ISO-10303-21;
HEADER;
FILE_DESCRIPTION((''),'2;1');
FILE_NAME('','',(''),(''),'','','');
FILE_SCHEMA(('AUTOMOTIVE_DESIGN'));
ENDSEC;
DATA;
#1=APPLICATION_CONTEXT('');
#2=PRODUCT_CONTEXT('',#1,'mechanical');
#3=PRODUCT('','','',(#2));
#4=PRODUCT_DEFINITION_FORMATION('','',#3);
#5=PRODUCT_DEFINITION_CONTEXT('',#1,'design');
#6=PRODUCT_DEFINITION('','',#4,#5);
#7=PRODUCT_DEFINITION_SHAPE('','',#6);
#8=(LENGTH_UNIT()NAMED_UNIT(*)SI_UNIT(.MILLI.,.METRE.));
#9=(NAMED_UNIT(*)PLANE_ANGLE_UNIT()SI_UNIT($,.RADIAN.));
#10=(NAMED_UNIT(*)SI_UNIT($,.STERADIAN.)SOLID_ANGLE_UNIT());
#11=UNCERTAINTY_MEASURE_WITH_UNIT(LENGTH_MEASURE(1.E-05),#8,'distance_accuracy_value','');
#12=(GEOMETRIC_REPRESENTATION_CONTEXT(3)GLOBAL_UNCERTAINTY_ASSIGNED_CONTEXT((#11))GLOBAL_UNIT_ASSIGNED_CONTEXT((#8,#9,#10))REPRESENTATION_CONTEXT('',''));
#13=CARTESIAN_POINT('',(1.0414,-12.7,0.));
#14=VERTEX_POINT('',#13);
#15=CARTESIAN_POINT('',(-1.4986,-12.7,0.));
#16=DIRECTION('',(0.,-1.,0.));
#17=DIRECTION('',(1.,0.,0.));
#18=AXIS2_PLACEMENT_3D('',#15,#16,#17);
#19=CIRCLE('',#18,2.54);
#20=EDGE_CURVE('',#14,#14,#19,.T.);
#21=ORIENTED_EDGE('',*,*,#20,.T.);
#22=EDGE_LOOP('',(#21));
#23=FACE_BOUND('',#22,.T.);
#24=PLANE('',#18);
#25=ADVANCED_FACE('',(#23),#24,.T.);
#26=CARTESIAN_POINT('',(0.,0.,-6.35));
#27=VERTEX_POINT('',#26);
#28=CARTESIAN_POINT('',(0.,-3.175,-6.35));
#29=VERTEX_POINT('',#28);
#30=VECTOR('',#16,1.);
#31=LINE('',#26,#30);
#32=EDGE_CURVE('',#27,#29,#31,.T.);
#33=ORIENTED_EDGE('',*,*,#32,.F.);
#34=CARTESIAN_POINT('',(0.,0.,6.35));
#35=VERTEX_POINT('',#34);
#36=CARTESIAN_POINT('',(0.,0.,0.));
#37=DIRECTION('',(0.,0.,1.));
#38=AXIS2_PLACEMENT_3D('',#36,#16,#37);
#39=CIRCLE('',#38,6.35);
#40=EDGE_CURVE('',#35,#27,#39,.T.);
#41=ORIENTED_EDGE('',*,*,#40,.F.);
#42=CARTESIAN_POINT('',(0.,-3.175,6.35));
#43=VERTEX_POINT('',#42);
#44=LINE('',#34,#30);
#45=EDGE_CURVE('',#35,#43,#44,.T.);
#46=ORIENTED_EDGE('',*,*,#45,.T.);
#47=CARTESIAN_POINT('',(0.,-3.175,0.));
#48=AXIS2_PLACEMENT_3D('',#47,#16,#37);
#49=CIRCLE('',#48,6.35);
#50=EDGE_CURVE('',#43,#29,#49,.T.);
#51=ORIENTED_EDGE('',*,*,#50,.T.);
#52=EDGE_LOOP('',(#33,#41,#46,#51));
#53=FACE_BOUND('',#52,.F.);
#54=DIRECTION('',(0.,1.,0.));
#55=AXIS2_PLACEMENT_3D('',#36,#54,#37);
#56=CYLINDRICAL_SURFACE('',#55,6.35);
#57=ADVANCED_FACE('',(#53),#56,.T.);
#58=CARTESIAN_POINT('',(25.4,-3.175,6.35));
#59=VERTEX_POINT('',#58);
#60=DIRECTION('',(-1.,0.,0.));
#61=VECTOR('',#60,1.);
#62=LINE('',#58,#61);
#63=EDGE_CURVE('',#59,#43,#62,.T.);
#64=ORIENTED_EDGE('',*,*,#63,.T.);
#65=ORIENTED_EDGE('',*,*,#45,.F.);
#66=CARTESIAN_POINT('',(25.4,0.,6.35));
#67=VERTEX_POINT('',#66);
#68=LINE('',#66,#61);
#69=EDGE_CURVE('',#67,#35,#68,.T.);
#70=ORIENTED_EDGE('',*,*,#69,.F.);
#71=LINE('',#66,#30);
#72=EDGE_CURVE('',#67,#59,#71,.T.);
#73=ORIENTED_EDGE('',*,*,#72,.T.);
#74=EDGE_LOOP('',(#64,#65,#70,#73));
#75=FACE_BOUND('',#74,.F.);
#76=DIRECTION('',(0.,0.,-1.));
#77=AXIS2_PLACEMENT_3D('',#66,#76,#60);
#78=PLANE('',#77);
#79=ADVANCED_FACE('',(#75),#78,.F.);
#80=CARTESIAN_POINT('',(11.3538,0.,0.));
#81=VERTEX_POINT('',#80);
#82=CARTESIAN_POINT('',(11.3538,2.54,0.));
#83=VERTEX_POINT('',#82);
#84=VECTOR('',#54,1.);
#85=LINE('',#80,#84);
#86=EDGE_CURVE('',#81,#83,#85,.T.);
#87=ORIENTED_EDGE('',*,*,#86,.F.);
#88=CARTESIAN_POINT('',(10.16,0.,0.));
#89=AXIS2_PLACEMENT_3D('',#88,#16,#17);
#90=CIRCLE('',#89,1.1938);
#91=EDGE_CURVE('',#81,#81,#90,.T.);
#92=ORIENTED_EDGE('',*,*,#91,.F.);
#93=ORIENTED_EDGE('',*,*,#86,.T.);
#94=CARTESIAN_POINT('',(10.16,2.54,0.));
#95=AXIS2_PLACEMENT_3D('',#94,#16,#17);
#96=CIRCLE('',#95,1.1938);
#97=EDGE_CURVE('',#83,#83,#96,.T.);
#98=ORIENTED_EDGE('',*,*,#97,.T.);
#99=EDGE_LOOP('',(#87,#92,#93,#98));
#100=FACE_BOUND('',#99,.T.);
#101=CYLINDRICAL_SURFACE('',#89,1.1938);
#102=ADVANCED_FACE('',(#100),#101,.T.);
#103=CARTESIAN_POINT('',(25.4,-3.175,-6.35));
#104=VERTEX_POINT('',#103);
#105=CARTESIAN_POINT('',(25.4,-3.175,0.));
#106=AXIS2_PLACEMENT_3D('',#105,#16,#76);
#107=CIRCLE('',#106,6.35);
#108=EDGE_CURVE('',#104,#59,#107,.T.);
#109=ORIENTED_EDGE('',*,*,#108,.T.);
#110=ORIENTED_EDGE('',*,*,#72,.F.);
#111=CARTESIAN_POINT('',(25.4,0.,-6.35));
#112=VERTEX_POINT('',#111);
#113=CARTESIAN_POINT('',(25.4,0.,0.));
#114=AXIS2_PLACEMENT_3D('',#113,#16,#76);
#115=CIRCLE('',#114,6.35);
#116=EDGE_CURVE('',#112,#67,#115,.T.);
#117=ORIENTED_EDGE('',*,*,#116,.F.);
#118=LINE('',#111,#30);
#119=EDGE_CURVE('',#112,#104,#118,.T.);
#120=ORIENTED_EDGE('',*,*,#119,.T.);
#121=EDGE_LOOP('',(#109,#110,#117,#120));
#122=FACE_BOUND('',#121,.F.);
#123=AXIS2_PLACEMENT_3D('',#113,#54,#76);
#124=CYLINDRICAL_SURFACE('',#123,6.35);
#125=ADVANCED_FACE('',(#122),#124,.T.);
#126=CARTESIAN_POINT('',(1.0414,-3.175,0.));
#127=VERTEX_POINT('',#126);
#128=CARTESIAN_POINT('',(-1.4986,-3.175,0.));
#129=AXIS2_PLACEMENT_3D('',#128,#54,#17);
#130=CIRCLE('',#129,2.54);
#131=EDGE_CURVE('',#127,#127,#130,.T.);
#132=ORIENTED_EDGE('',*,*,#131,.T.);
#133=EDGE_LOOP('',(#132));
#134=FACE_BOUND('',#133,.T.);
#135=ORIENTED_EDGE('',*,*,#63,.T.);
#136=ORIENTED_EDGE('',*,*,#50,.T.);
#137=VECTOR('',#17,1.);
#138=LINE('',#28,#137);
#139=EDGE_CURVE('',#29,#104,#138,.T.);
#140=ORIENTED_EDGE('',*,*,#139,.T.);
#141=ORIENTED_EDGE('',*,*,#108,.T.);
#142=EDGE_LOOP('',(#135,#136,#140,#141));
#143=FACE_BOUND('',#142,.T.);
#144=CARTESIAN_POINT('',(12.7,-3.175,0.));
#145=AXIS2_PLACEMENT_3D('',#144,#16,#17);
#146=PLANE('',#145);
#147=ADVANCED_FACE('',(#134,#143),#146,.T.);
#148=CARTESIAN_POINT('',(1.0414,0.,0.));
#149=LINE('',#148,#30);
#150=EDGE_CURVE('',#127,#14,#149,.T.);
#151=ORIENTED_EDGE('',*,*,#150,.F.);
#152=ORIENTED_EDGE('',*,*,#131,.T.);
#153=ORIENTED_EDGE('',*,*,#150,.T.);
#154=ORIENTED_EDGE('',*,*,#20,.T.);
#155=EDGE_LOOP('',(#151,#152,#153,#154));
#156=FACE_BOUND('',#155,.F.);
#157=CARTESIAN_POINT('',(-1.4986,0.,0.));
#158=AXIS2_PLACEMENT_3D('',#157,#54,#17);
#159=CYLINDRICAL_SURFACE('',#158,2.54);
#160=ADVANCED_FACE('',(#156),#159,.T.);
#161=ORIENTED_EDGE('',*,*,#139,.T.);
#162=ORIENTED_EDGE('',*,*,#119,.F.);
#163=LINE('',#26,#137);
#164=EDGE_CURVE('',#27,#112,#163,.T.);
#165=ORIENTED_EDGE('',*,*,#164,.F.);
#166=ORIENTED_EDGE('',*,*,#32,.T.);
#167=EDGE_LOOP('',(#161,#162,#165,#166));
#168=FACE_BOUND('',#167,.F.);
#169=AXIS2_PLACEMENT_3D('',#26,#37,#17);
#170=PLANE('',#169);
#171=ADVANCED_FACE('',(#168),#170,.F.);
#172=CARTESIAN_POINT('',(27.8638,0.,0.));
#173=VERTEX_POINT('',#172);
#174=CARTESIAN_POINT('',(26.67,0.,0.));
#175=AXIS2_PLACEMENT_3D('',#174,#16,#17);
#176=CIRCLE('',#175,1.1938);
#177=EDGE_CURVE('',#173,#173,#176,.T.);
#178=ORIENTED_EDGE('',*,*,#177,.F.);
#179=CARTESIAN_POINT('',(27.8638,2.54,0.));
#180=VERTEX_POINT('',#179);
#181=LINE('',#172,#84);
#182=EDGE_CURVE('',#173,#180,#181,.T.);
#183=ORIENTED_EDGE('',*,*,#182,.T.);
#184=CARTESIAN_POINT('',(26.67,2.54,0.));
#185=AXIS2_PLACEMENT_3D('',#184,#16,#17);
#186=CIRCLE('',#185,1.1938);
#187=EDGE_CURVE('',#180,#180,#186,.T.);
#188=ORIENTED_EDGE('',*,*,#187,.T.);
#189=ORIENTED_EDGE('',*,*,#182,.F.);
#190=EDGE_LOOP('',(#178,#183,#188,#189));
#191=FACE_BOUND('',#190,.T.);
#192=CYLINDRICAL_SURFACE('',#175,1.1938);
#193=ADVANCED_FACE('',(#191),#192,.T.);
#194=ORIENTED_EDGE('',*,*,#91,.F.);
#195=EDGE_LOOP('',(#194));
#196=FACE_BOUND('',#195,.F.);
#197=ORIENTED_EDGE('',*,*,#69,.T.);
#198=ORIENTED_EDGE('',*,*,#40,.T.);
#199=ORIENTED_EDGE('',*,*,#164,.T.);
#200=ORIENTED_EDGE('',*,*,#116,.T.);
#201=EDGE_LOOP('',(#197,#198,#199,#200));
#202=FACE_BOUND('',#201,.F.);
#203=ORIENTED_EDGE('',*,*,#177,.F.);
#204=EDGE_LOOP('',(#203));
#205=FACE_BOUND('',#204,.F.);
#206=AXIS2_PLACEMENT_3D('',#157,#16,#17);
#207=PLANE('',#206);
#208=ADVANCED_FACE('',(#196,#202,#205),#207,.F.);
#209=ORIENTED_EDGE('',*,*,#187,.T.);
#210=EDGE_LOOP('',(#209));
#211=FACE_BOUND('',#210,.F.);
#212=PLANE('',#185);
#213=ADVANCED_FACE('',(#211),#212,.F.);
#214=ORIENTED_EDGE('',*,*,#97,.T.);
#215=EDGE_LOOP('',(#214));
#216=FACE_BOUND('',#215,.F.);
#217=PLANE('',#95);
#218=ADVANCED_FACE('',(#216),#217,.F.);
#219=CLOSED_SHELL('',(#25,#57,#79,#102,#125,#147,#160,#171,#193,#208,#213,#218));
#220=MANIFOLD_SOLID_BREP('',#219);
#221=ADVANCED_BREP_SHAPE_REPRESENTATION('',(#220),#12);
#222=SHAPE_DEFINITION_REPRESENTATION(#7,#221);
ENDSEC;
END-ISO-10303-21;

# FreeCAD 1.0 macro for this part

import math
import FreeCAD as App
import Part
import Sketcher

V = App.Vector
Q = App.Units.Quantity

doc = App.newDocument("Part")
body = doc.addObject("PartDesign::Body", "Body")

sketch1 = body.newObject("Sketcher::SketchObject", "Sketch")
sketch1.AttachmentSupport = (doc.getObject("XZ_Plane"), [""])
sketch1.MapMode = "FlatFace"
sketch1.addGeometry(Part.LineSegment(V(25, 6, 0), V(0, 6, 0)), False)
sketch1.addGeometry(Part.ArcOfCircle(Part.Circle(V(0, 0, 0), V(0, 0, 1), 6), math.radians(90), math.radians(270)), False)
sketch1.addGeometry(Part.LineSegment(V(0, -6, 0), V(25, -6, 0)), False)
sketch1.addGeometry(Part.ArcOfCircle(Part.Circle(V(25, 0, 0), V(0, 0, 1), 6), math.radians(-90), math.radians(90)), False)
sketch1.addConstraint(Sketcher.Constraint("Tangent", 0, 2, 1, 1))
sketch1.addConstraint(Sketcher.Constraint("Tangent", 1, 2, 2, 1))
sketch1.addConstraint(Sketcher.Constraint("Tangent", 2, 2, 3, 1))
sketch1.addConstraint(Sketcher.Constraint("Tangent", 3, 2, 0, 1))
sketch1.addConstraint(Sketcher.Constraint("Horizontal", 0))
sketch1.addConstraint(Sketcher.Constraint("Horizontal", 2))
sketch1.addConstraint(Sketcher.Constraint("Coincident", 1, 3, -1, 1))
sketch1.addConstraint(Sketcher.Constraint("DistanceX", 0, 2, 0, 1, Q("1 in")))
sketch1.addConstraint(Sketcher.Constraint("Radius", 1, Q("0.25 in")))
pad1 = body.newObject("PartDesign::Pad", "Pad")
pad1.Profile = sketch1
pad1.Length = Q("0.125 in")

sketch2 = body.newObject("Sketcher::SketchObject", "Sketch001")
sketch2.AttachmentSupport = (doc.getObject("XZ_Plane"), [""])
sketch2.MapMode = "FlatFace"
sketch2.addGeometry(Part.Circle(V(10.2, 0, 0), V(0, 0, 1), 1.2), False)
sketch2.addGeometry(Part.Circle(V(26.7, 0, 0), V(0, 0, 1), 1.2), False)
sketch2.addConstraint(Sketcher.Constraint("Equal", 0, 1))
sketch2.addConstraint(Sketcher.Constraint("PointOnObject", 0, 3, -1))
sketch2.addConstraint(Sketcher.Constraint("PointOnObject", 1, 3, -1))
sketch2.addConstraint(Sketcher.Constraint("Diameter", 0, Q("0.094 in")))
sketch2.addConstraint(Sketcher.Constraint("DistanceX", -1, 1, 0, 3, Q("0.4 in")))
sketch2.addConstraint(Sketcher.Constraint("DistanceX", -1, 1, 1, 3, Q("1.05 in")))
pad2 = body.newObject("PartDesign::Pad", "Pad001")
pad2.Profile = sketch2
pad2.Length = Q("0.1 in")
pad2.Reversed = True

sketch3 = body.newObject("Sketcher::SketchObject", "Sketch002")
sketch3.AttachmentSupport = (doc.getObject("XZ_Plane"), [""])
sketch3.MapMode = "FlatFace"
sketch3.addGeometry(Part.Circle(V(-1.5, 0, 0), V(0, 0, 1), 2.5), False)
sketch3.addConstraint(Sketcher.Constraint("PointOnObject", 0, 3, -1))
sketch3.addConstraint(Sketcher.Constraint("Diameter", 0, Q("0.2 in")))
sketch3.addConstraint(Sketcher.Constraint("DistanceX", 0, 3, -1, 1, Q("0.059 in")))
pad3 = body.newObject("PartDesign::Pad", "Pad002")
pad3.Profile = sketch3
pad3.Length = Q("0.5 in")

doc.recompute()
